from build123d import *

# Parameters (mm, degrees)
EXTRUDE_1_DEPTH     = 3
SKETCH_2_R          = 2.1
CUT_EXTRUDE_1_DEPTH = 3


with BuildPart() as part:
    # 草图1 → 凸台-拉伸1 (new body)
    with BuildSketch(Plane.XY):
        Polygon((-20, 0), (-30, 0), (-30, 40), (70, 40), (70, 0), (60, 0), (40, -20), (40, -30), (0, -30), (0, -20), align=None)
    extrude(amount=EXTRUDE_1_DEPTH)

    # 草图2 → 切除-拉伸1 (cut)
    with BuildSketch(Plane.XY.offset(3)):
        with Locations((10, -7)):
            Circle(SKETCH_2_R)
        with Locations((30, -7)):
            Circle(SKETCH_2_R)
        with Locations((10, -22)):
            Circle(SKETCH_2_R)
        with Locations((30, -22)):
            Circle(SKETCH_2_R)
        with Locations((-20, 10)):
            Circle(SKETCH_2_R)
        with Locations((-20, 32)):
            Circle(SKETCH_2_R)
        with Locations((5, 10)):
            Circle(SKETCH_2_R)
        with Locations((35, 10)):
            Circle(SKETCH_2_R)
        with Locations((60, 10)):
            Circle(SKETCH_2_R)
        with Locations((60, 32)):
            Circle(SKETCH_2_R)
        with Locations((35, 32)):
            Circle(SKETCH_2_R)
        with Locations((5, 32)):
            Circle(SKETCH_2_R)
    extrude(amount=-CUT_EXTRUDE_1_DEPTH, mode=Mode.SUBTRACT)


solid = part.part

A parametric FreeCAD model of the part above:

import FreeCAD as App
import Part
import Sketcher
from FreeCAD import Vector


def add_polygon(sketch, points):
    """Adds a closed chain of lines whose ends are joined by coincident constraints."""
    first, n = sketch.GeometryCount, len(points)
    for a, b in zip(points, points[1:] + points[:1]):
        sketch.addGeometry(Part.LineSegment(App.Vector(*a, 0), App.Vector(*b, 0)), False)
    for i in range(n):
        sketch.addConstraint(Sketcher.Constraint("Coincident", first + i, 2, first + (i + 1) % n, 1))

doc = App.newDocument("Part")
body = doc.addObject("PartDesign::Body", "Body")

# Sketch on XY plane
sketch1 = doc.addObject("Sketcher::SketchObject", "Sketch")
body.addObject(sketch1)
sketch1.AttachmentSupport = (doc.XY_Plane, [""])
sketch1.MapMode = "FlatFace"
add_polygon(sketch1, [(-30, 0), (-20, 0), (0, -20), (0, -30), (40, -30), (40, -20), (60, 0), (70, 0), (70, 40), (-30, 40)])  # lines 0-9
sketch1.addConstraint([
    Sketcher.Constraint("Horizontal", 0),
    Sketcher.Constraint("Vertical", 2),
    Sketcher.Constraint("Horizontal", 3),
    Sketcher.Constraint("Vertical", 4),
    Sketcher.Constraint("Horizontal", 6),
    Sketcher.Constraint("Vertical", 7),
    Sketcher.Constraint("Horizontal", 8),
    Sketcher.Constraint("Vertical", 9),
    Sketcher.Constraint("PointOnObject", 0, 2, -1),
    Sketcher.Constraint("PointOnObject", 1, 2, -2),
    Sketcher.Constraint("PointOnObject", 5, 2, -1),
    Sketcher.Constraint("Perpendicular", 1, 5),
    Sketcher.Constraint("Horizontal", 1, 2, 4, 2),
    Sketcher.Constraint("Equal", 0, 6),
    Sketcher.Constraint("Equal", 6, 2),
    Sketcher.Constraint("Equal", 3, 7),
    Sketcher.Constraint("Equal", 1, 5),
    Sketcher.Constraint("DistanceX", 0, 1, 0, 2, 10.0),
    Sketcher.Constraint("DistanceX", 3, 1, 3, 2, 40.0),
    Sketcher.Constraint("DistanceX", 8, 2, 8, 1, 100.0),
])
pad1 = doc.addObject("PartDesign::Pad", "Pad")
body.addObject(pad1)
pad1.Profile = sketch1
pad1.Length = 3

# Sketch on XY plane
sketch2 = doc.addObject("Sketcher::SketchObject", "Sketch001")
body.addObject(sketch2)
sketch2.AttachmentSupport = (doc.XY_Plane, [""])
sketch2.MapMode = "FlatFace"
sketch2.AttachmentOffset = App.Placement(Vector(0, 0, 3), App.Rotation())
sketch2.addGeometry([
    Part.Circle(Vector(10, -7, 0), Vector(0, 0, 1), 2.1),  # 0
    Part.Circle(Vector(30, -7, 0), Vector(0, 0, 1), 2.1),  # 1
    Part.Circle(Vector(10, -22, 0), Vector(0, 0, 1), 2.1),  # 2
    Part.Circle(Vector(30, -22, 0), Vector(0, 0, 1), 2.1),  # 3
    Part.Circle(Vector(-20, 10, 0), Vector(0, 0, 1), 2.1),  # 4
    Part.Circle(Vector(-20, 32, 0), Vector(0, 0, 1), 2.1),  # 5
    Part.Circle(Vector(5, 10, 0), Vector(0, 0, 1), 2.1),  # 6
    Part.Circle(Vector(35, 10, 0), Vector(0, 0, 1), 2.1),  # 7
    Part.Circle(Vector(60, 10, 0), Vector(0, 0, 1), 2.1),  # 8
    Part.Circle(Vector(60, 32, 0), Vector(0, 0, 1), 2.1),  # 9
    Part.Circle(Vector(35, 32, 0), Vector(0, 0, 1), 2.1),  # 10
    Part.Circle(Vector(5, 32, 0), Vector(0, 0, 1), 2.1),  # 11
], False)
sketch2.addConstraint([
    Sketcher.Constraint("Equal", 0, 1),
    Sketcher.Constraint("Equal", 1, 2),
    Sketcher.Constraint("Equal", 2, 3),
    Sketcher.Constraint("Equal", 3, 4),
    Sketcher.Constraint("Equal", 4, 5),
    Sketcher.Constraint("Equal", 5, 6),
    Sketcher.Constraint("Equal", 6, 7),
    Sketcher.Constraint("Equal", 7, 8),
    Sketcher.Constraint("Equal", 8, 9),
    Sketcher.Constraint("Equal", 9, 10),
    Sketcher.Constraint("Equal", 10, 11),
    Sketcher.Constraint("Horizontal", 0, 3, 1, 3),
    Sketcher.Constraint("Horizontal", 2, 3, 3, 3),
    Sketcher.Constraint("Horizontal", 4, 3, 6, 3),
    Sketcher.Constraint("Horizontal", 6, 3, 7, 3),
    Sketcher.Constraint("Horizontal", 7, 3, 8, 3),
    Sketcher.Constraint("Horizontal", 5, 3, 9, 3),
    Sketcher.Constraint("Horizontal", 9, 3, 10, 3),
    Sketcher.Constraint("Horizontal", 10, 3, 11, 3),
    Sketcher.Constraint("Vertical", 0, 3, 2, 3),
    Sketcher.Constraint("Vertical", 1, 3, 3, 3),
    Sketcher.Constraint("Vertical", 4, 3, 5, 3),
    Sketcher.Constraint("Vertical", 8, 3, 9, 3),
    Sketcher.Constraint("Vertical", 7, 3, 10, 3),
    Sketcher.Constraint("Vertical", 6, 3, 11, 3),
    Sketcher.Constraint("Diameter", 0, 4.2),
    Sketcher.Constraint("DistanceX", -1, 1, 0, 3, 10.0),
    Sketcher.Constraint("DistanceY", 0, 3, -1, 1, 7.0),
    Sketcher.Constraint("DistanceX", -1, 1, 1, 3, 30.0),
    Sketcher.Constraint("DistanceY", 2, 3, -1, 1, 22.0),
    Sketcher.Constraint("DistanceX", 4, 3, -1, 1, 20.0),
    Sketcher.Constraint("DistanceY", -1, 1, 4, 3, 10.0),
    Sketcher.Constraint("DistanceY", -1, 1, 5, 3, 32.0),
    Sketcher.Constraint("DistanceX", -1, 1, 6, 3, 5.0),
    Sketcher.Constraint("DistanceX", -1, 1, 7, 3, 35.0),
    Sketcher.Constraint("DistanceX", -1, 1, 8, 3, 60.0),
])
pocket1 = doc.addObject("PartDesign::Pocket", "Pocket")
body.addObject(pocket1)
pocket1.Profile = sketch2
pocket1.Length = 3

doc.recompute()
